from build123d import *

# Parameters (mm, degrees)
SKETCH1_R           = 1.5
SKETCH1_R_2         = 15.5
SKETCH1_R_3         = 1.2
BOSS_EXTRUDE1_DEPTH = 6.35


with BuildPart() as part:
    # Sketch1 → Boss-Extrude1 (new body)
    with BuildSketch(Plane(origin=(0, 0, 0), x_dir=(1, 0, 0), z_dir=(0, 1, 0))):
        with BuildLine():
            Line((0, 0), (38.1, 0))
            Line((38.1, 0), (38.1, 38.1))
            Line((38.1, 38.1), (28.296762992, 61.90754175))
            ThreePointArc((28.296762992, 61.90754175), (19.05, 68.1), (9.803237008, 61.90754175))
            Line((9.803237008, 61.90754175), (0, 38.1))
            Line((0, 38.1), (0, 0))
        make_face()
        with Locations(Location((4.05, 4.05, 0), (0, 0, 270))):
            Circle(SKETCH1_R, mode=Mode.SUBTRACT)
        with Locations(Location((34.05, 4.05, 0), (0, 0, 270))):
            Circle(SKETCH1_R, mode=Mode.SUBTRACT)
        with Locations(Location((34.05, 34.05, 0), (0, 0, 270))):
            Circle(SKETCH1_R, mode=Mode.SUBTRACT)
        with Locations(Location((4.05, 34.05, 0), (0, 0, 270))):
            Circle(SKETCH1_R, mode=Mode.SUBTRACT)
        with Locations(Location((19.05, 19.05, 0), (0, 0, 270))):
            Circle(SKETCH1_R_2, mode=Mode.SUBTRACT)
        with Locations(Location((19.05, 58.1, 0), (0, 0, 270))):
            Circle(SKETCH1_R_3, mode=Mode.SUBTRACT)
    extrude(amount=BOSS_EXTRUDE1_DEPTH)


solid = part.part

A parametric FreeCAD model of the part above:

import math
import FreeCAD as App
import Part
import Sketcher
from FreeCAD import Vector

doc = App.newDocument("Part")
params = doc.addObject("Spreadsheet::Sheet", "Params")
for row, (alias, value) in enumerate([
    ("sketch1_diameter", "3 mm"),
    ("sketch1_diameter2", "31 mm"),
    ("sketch1_radius", "10 mm"),
    ("sketch1_diameter3", "2.4 mm"),
    ("sketch1_width", "38.1 mm"),
    ("pad1_length", "6.35 mm"),
], start=1):
    params.set(f"A{row}", alias)
    params.set(f"B{row}", "=" + value)
    params.setAlias(f"B{row}", alias)

body = doc.addObject("PartDesign::Body", "Body")

# Sketch on XZ plane
sketch1 = body.newObject("Sketcher::SketchObject", "Sketch")
sketch1.AttachmentSupport = (doc.getObject("XZ_Plane"), [""])
sketch1.MapMode = "FlatFace"
sketch1.addGeometry(Part.LineSegment(Vector(0, 0, 0), Vector(38.1, 0, 0)), False)
sketch1.addGeometry(Part.LineSegment(Vector(38.1, 0, 0), Vector(38.1, -38.1, 0)), False)
sketch1.addGeometry(Part.LineSegment(Vector(38.1, -38.1, 0), Vector(28.3, -61.9, 0)), False)
sketch1.addGeometry(Part.ArcOfCircle(Part.Circle(Vector(19.1, -58.1, 0), Vector(0, 0, 1), 10), math.radians(-158), math.radians(-22)), False)
sketch1.addGeometry(Part.LineSegment(Vector(9.8, -61.9, 0), Vector(0, -38.1, 0)), False)
sketch1.addGeometry(Part.LineSegment(Vector(0, -38.1, 0), Vector(0, 0, 0)), False)
sketch1.addGeometry(Part.Circle(Vector(4, -4, 0), Vector(0, 0, 1), 1.5), False)
sketch1.addGeometry(Part.Circle(Vector(34, -4, 0), Vector(0, 0, 1), 1.5), False)
sketch1.addGeometry(Part.Circle(Vector(19.1, -19.1, 0), Vector(0, 0, 1), 15.5), False)
sketch1.addGeometry(Part.Circle(Vector(4, -34, 0), Vector(0, 0, 1), 1.5), False)
sketch1.addGeometry(Part.Circle(Vector(34, -34, 0), Vector(0, 0, 1), 1.5), False)
sketch1.addGeometry(Part.Circle(Vector(19.1, -58.1, 0), Vector(0, 0, 1), 1.2), False)
sketch1.addConstraint(Sketcher.Constraint("Coincident", 0, 2, 1, 1))
sketch1.addConstraint(Sketcher.Constraint("Coincident", 1, 2, 2, 1))
sketch1.addConstraint(Sketcher.Constraint("Tangent", 2, 2, 3, 2))
sketch1.addConstraint(Sketcher.Constraint("Tangent", 3, 1, 4, 1))
sketch1.addConstraint(Sketcher.Constraint("Coincident", 4, 2, 5, 1))
sketch1.addConstraint(Sketcher.Constraint("Coincident", 5, 2, 0, 1))
sketch1.addConstraint(Sketcher.Constraint("Horizontal", 0))
sketch1.addConstraint(Sketcher.Constraint("Vertical", 1))
sketch1.addConstraint(Sketcher.Constraint("Vertical", 5))
sketch1.addConstraint(Sketcher.Constraint("Coincident", 5, 2, -1, 1))
sketch1.addConstraint(Sketcher.Constraint("Coincident", 11, 3, 3, 3))
sketch1.addConstraint(Sketcher.Constraint("Equal", 6, 7))
sketch1.addConstraint(Sketcher.Constraint("Equal", 7, 9))
sketch1.addConstraint(Sketcher.Constraint("Equal", 9, 10))
sketch1.addConstraint(Sketcher.Constraint("Horizontal", 6, 3, 7, 3))
sketch1.addConstraint(Sketcher.Constraint("Horizontal", 9, 3, 10, 3))
sketch1.addConstraint(Sketcher.Constraint("Horizontal", 2, 2, 3, 1))
sketch1.addConstraint(Sketcher.Constraint("Horizontal", 1, 2, 4, 2))
sketch1.addConstraint(Sketcher.Constraint("Vertical", 3, 3, 8, 3))
sketch1.addConstraint(Sketcher.Constraint("Vertical", 6, 3, 9, 3))
sketch1.addConstraint(Sketcher.Constraint("Vertical", 7, 3, 10, 3))
sketch1.addConstraint(Sketcher.Constraint("Equal", 0, 1))
sketch1.addConstraint(Sketcher.Constraint("Diameter", 6, 3.0))
sketch1.addConstraint(Sketcher.Constraint("Diameter", 8, 31.0))
sketch1.addConstraint(Sketcher.Constraint("Radius", 3, 10.0))
sketch1.addConstraint(Sketcher.Constraint("Diameter", 11, 2.4))
sketch1.addConstraint(Sketcher.Constraint("DistanceX", 0, 1, 0, 2, 38.1))
sketch1.addConstraint(Sketcher.Constraint("DistanceX", 6, 3, 3, 3, 15.0))
sketch1.addConstraint(Sketcher.Constraint("DistanceX", 6, 3, 7, 3, 30.0))
sketch1.addConstraint(Sketcher.Constraint("DistanceY", 8, 3, 7, 3, 15.0))
sketch1.addConstraint(Sketcher.Constraint("DistanceY", 9, 3, 8, 3, 15.0))
sketch1.addConstraint(Sketcher.Constraint("DistanceY", 3, 3, 1, 2, 20.0))
sketch1.addConstraint(Sketcher.Constraint("DistanceY", 6, 3, -1, 1, 4.05))
sketch1.setExpression("Constraints[22]", "Params.sketch1_diameter")
sketch1.setExpression("Constraints[23]", "Params.sketch1_diameter2")
sketch1.setExpression("Constraints[24]", "Params.sketch1_radius")
sketch1.setExpression("Constraints[25]", "Params.sketch1_diameter3")
sketch1.setExpression("Constraints[26]", "Params.sketch1_width")
pad1 = body.newObject("PartDesign::Pad", "Pad")
pad1.Profile = sketch1
pad1.setExpression("Length", "Params.pad1_length")
pad1.Reversed = True

doc.recompute()
